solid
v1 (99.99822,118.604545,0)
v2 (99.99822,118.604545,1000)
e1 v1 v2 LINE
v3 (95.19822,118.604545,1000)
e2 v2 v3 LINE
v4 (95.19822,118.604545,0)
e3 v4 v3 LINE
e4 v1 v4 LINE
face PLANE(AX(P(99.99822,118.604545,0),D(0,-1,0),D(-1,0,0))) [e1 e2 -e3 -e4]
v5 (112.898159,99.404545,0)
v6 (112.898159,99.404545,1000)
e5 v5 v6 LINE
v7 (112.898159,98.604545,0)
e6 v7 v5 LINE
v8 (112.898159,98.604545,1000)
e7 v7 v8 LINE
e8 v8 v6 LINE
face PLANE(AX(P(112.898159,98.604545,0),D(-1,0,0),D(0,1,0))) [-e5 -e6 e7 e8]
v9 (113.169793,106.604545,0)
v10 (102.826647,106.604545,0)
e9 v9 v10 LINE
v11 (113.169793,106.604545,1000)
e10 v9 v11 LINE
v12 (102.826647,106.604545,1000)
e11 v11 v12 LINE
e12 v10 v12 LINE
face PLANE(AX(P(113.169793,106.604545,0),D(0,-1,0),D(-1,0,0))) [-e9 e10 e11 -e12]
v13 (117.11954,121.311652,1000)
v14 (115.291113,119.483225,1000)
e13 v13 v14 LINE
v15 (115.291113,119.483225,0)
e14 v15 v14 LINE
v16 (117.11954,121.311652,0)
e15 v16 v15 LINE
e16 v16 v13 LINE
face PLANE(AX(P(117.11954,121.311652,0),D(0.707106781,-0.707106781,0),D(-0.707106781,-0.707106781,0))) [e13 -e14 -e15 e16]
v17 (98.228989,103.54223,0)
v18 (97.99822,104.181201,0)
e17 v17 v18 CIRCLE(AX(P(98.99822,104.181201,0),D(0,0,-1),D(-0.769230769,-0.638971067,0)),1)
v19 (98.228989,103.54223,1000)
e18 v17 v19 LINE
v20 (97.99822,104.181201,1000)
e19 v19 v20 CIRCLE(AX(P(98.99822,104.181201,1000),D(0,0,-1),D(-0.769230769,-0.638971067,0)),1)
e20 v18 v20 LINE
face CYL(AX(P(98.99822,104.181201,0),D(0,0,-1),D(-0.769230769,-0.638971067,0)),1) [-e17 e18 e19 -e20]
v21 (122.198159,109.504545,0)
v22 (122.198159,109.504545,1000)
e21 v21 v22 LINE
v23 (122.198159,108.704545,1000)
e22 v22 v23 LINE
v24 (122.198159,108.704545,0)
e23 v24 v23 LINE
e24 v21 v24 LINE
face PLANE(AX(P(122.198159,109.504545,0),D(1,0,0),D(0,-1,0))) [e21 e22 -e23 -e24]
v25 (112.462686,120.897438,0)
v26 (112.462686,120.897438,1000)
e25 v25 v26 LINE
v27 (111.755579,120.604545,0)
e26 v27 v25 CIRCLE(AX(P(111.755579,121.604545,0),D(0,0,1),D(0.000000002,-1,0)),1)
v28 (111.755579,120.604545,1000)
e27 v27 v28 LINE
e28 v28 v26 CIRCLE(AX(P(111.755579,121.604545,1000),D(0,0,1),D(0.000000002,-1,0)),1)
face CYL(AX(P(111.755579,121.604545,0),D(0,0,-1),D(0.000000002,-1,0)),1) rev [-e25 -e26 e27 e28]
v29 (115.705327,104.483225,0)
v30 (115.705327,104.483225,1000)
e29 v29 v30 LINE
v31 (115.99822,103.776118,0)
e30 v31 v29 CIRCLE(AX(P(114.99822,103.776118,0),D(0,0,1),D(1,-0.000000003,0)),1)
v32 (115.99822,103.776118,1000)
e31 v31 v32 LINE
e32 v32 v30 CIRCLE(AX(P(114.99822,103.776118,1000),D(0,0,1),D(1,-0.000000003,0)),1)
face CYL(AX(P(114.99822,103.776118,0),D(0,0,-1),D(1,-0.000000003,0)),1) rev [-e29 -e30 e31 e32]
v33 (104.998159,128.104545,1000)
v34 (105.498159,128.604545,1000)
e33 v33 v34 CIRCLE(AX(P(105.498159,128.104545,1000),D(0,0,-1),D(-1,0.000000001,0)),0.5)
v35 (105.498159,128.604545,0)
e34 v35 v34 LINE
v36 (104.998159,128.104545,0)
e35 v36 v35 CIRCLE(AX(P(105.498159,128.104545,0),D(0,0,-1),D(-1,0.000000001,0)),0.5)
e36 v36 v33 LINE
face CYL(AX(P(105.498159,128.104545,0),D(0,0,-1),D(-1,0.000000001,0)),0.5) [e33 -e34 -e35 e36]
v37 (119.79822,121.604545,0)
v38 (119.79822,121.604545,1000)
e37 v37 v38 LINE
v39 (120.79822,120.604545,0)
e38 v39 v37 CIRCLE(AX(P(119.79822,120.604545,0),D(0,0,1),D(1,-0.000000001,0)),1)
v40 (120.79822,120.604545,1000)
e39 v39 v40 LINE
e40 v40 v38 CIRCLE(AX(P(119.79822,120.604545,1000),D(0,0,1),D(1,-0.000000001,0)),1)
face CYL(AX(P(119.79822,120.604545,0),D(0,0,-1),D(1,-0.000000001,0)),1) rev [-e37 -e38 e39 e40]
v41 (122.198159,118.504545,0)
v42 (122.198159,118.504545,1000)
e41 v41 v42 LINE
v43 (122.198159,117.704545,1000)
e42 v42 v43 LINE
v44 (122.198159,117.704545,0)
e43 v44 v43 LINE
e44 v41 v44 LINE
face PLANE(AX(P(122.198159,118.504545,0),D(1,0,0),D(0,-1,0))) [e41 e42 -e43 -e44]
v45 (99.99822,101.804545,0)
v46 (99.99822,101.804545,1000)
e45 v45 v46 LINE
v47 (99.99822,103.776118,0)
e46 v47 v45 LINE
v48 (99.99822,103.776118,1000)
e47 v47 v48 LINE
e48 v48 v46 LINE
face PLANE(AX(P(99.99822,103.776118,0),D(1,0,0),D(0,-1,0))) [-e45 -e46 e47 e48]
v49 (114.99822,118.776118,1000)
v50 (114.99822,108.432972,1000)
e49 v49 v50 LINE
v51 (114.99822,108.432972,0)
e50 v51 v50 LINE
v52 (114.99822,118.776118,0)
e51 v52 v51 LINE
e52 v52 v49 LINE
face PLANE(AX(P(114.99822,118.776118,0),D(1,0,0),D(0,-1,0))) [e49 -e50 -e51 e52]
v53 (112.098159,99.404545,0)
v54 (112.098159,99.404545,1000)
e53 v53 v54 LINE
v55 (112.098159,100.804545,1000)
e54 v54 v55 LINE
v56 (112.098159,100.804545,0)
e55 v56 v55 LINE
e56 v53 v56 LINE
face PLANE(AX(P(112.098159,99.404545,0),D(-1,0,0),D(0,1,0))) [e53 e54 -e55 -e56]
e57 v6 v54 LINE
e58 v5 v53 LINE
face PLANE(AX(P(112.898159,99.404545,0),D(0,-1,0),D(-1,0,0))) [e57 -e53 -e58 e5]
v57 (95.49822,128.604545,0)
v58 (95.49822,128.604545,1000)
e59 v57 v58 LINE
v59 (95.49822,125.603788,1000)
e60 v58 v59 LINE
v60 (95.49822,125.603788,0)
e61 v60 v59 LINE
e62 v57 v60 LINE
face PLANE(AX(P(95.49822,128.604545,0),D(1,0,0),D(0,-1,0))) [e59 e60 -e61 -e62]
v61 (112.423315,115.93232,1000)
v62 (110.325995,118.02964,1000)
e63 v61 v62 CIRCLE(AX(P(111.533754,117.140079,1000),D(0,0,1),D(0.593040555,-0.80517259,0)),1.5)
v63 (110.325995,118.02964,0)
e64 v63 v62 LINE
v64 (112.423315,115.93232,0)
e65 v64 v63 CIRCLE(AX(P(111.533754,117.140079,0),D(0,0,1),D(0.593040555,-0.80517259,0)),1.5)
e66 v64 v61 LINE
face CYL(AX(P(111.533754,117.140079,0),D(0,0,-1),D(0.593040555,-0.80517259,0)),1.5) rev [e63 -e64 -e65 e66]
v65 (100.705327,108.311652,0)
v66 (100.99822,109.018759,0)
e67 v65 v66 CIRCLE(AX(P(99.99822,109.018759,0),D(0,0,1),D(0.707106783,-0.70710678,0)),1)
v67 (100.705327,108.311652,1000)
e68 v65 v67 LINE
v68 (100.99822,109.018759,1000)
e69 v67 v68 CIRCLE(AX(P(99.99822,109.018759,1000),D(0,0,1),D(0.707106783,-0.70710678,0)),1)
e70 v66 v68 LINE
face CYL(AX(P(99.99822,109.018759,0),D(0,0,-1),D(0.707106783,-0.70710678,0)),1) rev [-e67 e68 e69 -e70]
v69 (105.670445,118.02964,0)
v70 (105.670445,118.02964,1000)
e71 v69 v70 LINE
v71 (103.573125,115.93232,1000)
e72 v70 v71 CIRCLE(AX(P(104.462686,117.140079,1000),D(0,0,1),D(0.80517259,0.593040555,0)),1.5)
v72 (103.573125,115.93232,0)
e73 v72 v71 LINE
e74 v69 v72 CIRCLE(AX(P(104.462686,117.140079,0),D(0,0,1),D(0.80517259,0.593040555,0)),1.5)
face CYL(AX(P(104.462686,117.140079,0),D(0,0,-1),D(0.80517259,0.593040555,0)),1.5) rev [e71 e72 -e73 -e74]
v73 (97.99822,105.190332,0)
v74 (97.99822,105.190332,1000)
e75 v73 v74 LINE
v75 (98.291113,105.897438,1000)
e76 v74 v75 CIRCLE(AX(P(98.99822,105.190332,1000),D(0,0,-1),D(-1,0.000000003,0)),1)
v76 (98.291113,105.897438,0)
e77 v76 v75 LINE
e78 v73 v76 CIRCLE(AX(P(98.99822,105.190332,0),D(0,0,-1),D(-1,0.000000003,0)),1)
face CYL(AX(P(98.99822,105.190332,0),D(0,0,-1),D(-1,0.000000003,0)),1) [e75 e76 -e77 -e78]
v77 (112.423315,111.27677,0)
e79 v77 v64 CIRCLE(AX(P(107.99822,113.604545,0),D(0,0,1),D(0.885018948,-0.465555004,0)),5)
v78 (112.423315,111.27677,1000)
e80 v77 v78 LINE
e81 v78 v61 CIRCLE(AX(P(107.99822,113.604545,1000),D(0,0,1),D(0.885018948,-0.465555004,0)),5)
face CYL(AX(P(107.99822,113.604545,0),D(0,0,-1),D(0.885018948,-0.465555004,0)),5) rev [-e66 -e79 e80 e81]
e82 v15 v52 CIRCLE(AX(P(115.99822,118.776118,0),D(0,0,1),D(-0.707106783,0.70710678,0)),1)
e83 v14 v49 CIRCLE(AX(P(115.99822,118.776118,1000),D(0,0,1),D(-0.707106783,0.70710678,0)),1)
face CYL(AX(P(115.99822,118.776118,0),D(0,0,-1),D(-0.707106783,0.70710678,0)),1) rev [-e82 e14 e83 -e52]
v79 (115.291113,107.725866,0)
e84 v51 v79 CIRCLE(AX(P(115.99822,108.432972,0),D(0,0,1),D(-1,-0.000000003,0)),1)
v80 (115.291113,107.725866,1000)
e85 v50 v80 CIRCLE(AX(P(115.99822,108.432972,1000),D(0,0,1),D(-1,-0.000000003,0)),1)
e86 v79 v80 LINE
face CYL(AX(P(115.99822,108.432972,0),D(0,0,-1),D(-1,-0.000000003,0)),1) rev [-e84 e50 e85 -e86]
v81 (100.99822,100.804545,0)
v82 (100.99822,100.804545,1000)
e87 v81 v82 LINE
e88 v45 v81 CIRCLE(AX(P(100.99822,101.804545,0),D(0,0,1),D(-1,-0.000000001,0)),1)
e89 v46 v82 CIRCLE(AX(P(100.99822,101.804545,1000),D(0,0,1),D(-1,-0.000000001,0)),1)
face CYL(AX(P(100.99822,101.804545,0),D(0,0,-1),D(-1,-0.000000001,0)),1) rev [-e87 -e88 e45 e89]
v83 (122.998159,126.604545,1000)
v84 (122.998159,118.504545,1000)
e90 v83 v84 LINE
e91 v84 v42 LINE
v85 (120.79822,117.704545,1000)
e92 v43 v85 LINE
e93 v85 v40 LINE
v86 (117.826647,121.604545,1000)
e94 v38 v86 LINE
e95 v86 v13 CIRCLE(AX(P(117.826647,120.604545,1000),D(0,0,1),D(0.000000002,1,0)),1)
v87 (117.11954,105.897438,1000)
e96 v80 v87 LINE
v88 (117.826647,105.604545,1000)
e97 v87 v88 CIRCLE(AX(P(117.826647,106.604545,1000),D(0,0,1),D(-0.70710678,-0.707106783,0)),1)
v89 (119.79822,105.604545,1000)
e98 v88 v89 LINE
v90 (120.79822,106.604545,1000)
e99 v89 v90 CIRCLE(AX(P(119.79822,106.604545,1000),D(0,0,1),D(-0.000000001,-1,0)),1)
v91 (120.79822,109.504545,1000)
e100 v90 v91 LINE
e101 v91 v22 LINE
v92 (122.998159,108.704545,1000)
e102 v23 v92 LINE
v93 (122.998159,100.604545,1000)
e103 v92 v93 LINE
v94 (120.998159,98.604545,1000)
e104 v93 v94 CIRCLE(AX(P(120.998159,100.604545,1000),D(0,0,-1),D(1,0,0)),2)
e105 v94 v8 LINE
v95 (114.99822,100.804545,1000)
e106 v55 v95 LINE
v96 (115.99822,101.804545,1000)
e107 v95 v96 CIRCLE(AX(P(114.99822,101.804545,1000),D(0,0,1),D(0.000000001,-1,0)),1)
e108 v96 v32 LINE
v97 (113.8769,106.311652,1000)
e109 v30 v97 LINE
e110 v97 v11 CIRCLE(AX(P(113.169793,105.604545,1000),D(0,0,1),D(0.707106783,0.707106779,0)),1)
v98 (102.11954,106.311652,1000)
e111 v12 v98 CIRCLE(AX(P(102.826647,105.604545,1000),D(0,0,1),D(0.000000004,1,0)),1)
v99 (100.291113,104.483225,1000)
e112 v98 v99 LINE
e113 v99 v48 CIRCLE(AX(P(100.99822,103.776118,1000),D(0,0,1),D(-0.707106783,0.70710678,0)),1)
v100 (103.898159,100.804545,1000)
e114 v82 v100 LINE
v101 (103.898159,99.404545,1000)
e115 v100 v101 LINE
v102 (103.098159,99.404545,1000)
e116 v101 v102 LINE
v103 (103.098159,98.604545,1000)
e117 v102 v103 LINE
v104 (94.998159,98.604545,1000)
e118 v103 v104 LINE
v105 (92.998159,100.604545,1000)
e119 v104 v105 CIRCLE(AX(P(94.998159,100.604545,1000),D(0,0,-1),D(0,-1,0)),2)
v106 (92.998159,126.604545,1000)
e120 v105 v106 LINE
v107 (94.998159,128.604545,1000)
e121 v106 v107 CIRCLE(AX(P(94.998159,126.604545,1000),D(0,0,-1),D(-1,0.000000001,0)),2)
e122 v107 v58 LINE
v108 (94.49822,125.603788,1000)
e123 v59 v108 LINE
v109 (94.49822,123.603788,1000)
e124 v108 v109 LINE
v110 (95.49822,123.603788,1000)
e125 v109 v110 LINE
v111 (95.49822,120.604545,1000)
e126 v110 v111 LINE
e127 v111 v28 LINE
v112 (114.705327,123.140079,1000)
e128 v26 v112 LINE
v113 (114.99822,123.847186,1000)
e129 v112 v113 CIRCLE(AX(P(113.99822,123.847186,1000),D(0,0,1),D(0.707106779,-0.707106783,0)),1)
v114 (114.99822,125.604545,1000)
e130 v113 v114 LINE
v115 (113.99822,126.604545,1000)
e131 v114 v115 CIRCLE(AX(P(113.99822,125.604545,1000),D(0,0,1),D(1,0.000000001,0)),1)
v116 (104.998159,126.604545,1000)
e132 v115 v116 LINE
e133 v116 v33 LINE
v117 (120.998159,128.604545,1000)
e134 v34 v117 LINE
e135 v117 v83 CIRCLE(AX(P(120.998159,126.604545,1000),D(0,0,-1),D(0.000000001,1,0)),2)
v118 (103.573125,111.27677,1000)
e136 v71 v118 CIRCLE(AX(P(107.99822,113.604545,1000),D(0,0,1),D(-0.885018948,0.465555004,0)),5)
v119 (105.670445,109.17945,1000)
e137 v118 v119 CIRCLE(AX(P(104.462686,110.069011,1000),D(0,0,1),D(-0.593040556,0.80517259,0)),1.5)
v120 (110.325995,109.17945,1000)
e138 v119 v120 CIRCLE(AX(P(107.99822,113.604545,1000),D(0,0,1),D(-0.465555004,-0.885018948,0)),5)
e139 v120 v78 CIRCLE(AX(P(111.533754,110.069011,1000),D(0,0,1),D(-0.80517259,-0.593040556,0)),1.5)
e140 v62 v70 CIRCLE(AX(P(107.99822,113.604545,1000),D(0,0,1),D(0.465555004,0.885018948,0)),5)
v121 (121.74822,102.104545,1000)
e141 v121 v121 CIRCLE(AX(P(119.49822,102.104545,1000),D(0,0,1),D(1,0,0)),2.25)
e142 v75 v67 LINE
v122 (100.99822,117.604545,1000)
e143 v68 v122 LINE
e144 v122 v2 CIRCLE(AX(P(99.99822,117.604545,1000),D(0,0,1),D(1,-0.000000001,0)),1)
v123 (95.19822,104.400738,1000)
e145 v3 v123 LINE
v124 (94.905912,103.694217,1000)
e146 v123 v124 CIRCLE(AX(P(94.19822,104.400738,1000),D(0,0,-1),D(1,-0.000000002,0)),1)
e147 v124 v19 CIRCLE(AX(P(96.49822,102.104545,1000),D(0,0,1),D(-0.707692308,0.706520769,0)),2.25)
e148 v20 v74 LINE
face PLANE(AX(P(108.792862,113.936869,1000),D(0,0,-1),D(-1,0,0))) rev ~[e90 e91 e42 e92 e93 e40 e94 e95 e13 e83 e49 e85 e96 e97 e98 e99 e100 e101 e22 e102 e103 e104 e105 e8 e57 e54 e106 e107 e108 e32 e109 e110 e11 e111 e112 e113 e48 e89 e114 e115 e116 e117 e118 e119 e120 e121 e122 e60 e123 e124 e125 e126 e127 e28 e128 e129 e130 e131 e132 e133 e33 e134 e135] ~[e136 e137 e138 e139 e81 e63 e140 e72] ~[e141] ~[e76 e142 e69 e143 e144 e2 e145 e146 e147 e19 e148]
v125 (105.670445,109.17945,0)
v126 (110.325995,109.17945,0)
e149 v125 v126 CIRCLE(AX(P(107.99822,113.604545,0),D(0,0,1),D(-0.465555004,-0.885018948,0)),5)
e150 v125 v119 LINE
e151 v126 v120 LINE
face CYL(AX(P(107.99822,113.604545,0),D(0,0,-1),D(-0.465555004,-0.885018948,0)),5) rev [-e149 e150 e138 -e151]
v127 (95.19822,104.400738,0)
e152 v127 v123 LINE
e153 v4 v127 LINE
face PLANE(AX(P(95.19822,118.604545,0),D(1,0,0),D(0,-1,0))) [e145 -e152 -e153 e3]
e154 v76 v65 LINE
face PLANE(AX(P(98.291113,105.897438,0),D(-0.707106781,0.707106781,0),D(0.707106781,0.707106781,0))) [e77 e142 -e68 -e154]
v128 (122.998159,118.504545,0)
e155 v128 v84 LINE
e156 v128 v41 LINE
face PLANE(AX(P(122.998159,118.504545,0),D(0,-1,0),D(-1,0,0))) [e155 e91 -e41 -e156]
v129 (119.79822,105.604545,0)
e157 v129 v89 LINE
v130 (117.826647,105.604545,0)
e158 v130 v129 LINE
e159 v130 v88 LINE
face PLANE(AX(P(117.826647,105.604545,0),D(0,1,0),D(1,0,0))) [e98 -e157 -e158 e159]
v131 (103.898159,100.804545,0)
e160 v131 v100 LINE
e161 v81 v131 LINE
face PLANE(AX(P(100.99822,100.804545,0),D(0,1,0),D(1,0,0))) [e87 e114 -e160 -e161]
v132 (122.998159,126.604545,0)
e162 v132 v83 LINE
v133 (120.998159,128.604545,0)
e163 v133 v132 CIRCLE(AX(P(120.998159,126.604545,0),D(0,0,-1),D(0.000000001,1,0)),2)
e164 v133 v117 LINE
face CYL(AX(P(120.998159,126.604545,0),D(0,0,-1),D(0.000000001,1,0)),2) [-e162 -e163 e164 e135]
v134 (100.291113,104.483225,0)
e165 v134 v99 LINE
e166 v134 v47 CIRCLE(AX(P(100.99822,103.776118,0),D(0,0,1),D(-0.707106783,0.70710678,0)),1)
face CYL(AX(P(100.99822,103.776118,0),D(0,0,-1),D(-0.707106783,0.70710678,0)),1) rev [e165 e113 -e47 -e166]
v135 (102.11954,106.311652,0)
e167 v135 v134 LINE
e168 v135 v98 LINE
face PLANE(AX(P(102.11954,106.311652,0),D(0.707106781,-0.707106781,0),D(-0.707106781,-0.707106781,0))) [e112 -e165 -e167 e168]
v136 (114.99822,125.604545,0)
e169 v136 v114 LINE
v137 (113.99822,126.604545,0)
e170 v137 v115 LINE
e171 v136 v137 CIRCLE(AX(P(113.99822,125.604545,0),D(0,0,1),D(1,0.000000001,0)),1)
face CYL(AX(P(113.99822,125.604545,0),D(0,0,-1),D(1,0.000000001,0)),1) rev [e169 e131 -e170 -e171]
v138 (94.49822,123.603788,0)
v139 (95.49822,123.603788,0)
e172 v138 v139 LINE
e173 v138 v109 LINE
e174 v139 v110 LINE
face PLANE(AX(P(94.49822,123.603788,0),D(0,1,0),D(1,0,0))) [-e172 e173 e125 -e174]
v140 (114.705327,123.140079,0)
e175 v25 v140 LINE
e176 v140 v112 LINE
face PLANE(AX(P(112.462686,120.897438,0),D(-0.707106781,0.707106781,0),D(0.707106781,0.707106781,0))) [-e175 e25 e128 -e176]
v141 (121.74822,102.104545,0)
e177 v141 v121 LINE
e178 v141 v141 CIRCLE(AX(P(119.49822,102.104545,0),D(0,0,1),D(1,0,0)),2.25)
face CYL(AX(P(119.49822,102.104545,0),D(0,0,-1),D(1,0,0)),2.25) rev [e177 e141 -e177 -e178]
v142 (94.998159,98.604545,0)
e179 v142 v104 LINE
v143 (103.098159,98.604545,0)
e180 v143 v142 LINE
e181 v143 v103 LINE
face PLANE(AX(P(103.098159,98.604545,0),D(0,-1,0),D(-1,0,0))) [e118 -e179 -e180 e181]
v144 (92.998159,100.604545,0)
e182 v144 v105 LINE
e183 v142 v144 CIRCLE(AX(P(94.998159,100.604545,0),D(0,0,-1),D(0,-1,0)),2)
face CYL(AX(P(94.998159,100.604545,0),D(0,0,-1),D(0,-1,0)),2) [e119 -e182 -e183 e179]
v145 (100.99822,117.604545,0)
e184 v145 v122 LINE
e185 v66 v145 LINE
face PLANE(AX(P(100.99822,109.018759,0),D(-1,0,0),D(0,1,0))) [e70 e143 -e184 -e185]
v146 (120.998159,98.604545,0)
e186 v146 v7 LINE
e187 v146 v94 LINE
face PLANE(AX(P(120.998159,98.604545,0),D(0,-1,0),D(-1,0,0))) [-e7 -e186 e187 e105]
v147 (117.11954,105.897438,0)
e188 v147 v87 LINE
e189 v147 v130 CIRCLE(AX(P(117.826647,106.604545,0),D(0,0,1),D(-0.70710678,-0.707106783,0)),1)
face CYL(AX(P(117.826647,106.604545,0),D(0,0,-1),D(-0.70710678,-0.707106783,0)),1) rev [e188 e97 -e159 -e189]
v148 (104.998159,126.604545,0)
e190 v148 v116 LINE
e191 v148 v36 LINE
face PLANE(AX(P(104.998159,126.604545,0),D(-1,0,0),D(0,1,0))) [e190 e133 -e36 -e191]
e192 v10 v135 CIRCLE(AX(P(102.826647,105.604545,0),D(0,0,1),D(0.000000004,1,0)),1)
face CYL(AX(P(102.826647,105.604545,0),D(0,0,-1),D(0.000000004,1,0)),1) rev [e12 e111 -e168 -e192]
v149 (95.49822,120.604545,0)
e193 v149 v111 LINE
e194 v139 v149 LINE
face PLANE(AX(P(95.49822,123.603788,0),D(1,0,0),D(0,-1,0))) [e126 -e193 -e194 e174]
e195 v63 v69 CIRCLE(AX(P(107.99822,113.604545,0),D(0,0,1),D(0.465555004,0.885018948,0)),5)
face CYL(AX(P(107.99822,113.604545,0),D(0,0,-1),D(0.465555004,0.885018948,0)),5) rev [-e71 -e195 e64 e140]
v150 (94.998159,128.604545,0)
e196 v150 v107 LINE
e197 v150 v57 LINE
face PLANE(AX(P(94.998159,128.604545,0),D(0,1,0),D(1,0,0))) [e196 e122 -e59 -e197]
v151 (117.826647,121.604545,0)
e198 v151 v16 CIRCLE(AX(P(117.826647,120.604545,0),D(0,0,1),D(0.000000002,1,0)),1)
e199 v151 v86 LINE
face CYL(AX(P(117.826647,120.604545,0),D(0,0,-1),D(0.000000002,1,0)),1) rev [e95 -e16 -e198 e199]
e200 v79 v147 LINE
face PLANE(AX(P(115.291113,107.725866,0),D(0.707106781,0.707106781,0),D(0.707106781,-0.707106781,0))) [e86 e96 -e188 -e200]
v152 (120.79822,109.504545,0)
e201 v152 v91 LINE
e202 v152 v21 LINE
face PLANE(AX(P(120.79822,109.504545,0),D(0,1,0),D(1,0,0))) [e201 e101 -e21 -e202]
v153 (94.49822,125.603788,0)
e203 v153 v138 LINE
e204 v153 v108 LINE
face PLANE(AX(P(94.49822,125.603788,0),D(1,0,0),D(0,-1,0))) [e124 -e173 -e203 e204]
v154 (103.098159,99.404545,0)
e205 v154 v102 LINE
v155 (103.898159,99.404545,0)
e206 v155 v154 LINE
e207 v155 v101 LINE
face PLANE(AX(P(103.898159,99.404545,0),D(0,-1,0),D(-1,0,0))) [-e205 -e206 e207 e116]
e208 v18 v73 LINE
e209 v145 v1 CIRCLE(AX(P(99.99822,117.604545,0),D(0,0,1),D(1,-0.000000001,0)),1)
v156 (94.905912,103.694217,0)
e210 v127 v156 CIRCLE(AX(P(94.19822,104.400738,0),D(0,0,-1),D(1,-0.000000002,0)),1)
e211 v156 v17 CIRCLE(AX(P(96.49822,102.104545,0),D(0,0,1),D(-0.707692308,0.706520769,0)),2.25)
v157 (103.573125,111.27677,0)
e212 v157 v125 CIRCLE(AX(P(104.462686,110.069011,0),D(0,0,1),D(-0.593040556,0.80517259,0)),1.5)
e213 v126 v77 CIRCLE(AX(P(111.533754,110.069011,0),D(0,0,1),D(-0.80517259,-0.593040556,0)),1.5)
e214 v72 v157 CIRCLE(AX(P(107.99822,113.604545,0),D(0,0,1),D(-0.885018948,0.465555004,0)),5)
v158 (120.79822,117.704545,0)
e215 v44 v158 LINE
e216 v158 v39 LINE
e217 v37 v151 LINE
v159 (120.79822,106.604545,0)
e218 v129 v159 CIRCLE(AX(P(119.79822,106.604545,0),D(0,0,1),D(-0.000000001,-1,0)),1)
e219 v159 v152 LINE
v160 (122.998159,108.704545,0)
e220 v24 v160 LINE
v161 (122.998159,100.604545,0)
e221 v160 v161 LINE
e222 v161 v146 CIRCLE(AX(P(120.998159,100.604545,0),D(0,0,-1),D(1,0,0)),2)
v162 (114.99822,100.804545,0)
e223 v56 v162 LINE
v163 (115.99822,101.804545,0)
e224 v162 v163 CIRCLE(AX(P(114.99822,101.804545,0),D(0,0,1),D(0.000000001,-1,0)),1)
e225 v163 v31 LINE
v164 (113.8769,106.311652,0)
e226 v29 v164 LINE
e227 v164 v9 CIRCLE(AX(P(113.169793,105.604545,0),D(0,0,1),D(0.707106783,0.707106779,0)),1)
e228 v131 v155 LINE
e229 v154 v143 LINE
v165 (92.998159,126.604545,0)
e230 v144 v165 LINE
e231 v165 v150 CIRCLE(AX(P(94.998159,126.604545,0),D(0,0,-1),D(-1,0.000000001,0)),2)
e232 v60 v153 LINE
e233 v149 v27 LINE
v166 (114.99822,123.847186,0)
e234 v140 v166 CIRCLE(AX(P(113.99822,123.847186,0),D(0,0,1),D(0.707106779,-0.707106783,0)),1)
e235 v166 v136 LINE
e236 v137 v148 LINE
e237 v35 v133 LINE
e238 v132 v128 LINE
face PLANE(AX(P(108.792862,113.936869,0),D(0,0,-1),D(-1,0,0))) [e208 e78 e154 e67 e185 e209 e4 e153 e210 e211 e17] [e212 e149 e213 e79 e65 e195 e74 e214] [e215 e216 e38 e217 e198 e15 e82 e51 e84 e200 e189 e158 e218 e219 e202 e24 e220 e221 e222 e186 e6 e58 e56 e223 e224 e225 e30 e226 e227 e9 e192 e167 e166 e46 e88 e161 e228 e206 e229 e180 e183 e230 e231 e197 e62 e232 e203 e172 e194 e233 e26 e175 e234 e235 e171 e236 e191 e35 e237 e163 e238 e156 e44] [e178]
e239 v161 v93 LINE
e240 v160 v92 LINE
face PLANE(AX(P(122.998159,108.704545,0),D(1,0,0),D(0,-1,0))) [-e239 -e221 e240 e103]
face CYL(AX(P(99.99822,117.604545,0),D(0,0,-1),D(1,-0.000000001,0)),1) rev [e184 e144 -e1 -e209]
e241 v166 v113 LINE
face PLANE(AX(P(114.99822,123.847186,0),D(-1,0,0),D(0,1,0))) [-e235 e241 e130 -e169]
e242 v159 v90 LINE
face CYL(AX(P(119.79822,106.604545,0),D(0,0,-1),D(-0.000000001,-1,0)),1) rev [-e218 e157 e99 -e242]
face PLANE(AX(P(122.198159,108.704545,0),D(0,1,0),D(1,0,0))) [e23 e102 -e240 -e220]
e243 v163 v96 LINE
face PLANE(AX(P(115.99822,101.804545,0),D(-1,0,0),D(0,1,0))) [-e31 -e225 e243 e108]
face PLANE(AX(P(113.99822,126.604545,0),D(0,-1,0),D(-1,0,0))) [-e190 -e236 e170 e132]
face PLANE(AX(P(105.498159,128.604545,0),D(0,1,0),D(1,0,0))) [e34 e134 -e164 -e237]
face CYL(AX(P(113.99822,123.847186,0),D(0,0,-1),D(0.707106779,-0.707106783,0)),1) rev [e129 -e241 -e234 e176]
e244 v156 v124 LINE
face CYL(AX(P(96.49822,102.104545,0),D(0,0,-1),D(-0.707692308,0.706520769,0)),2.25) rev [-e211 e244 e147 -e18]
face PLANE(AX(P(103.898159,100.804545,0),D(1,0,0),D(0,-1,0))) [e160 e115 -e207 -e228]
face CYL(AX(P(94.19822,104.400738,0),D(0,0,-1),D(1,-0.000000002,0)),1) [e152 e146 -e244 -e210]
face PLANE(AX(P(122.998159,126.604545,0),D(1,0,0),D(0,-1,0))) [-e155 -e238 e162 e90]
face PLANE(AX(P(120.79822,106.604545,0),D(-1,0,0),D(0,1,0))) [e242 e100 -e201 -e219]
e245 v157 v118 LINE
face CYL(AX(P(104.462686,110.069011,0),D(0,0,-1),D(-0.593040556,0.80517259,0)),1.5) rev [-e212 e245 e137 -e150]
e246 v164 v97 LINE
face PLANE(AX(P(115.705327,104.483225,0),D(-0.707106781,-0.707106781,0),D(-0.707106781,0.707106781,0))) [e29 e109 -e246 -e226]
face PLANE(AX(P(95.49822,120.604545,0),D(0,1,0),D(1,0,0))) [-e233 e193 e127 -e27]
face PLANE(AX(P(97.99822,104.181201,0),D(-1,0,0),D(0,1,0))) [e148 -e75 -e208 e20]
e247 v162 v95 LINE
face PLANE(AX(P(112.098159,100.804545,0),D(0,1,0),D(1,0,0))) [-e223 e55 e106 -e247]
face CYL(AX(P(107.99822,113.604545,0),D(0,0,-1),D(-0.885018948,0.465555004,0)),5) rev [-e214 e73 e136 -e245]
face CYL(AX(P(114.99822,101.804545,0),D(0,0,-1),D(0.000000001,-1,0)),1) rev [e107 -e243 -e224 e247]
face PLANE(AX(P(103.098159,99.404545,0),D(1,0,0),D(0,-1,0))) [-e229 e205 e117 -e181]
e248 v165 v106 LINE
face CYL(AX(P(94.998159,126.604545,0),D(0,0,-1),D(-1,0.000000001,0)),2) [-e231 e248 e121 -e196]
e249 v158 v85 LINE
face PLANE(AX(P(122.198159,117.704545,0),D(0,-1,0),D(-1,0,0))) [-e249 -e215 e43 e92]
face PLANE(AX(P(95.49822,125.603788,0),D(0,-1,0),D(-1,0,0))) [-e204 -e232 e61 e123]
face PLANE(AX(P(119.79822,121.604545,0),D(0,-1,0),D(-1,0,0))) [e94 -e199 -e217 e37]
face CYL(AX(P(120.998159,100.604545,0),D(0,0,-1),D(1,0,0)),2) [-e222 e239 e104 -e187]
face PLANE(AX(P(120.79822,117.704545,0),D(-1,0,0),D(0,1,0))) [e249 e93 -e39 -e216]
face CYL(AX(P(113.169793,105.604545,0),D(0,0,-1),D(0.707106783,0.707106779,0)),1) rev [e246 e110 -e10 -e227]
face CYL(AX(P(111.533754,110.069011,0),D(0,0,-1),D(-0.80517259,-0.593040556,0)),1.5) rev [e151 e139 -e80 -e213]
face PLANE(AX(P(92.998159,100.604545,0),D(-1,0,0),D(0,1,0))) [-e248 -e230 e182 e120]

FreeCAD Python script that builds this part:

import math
import FreeCAD as App
import Part
import Sketcher

V = App.Vector

doc = App.newDocument("Part")
body = doc.addObject("PartDesign::Body", "Body")

sketch1 = body.newObject("Sketcher::SketchObject", "Sketch")
sketch1.AttachmentSupport = (doc.getObject("XY_Plane"), [""])
sketch1.MapMode = "FlatFace"
sketch1.addGeometry(Part.LineSegment(V(95.5, 123.6, 0), V(94.5, 123.6, 0)), False)
sketch1.addGeometry(Part.LineSegment(V(94.5, 123.6, 0), V(94.5, 125.6, 0)), False)
sketch1.addGeometry(Part.LineSegment(V(94.5, 125.6, 0), V(95.5, 125.6, 0)), False)
sketch1.addGeometry(Part.LineSegment(V(95.5, 125.6, 0), V(95.5, 128.6, 0)), False)
sketch1.addGeometry(Part.LineSegment(V(95.5, 128.6, 0), V(95, 128.6, 0)), False)
sketch1.addGeometry(Part.ArcOfCircle(Part.Circle(V(95, 126.6, 0), V(0, 0, 1), 2), math.radians(90), math.radians(180)), False)
sketch1.addGeometry(Part.LineSegment(V(93, 126.6, 0), V(93, 100.6, 0)), False)
sketch1.addGeometry(Part.ArcOfCircle(Part.Circle(V(95, 100.6, 0), V(0, 0, 1), 2), math.radians(180), math.radians(270)), False)
sketch1.addGeometry(Part.LineSegment(V(95, 98.6, 0), V(103.1, 98.6, 0)), False)
sketch1.addGeometry(Part.LineSegment(V(103.1, 98.6, 0), V(103.1, 99.4, 0)), False)
sketch1.addGeometry(Part.LineSegment(V(103.1, 99.4, 0), V(103.9, 99.4, 0)), False)
sketch1.addGeometry(Part.LineSegment(V(103.9, 99.4, 0), V(103.9, 100.8, 0)), False)
sketch1.addGeometry(Part.LineSegment(V(103.9, 100.8, 0), V(101, 100.8, 0)), False)
sketch1.addGeometry(Part.ArcOfCircle(Part.Circle(V(101, 101.8, 0), V(0, 0, 1), 1), math.radians(-180), math.radians(-90)), False)
sketch1.addGeometry(Part.LineSegment(V(100, 101.8, 0), V(100, 103.8, 0)), False)
sketch1.addGeometry(Part.ArcOfCircle(Part.Circle(V(101, 103.8, 0), V(0, 0, 1), 1), math.radians(135), math.radians(180)), False)
sketch1.addGeometry(Part.LineSegment(V(100.3, 104.5, 0), V(102.1, 106.3, 0)), False)
sketch1.addGeometry(Part.ArcOfCircle(Part.Circle(V(102.8, 105.6, 0), V(0, 0, 1), 1), math.radians(90), math.radians(135)), False)
sketch1.addGeometry(Part.LineSegment(V(102.8, 106.6, 0), V(113.2, 106.6, 0)), False)
sketch1.addGeometry(Part.ArcOfCircle(Part.Circle(V(113.2, 105.6, 0), V(0, 0, 1), 1), math.radians(45), math.radians(90)), False)
sketch1.addGeometry(Part.LineSegment(V(113.9, 106.3, 0), V(115.7, 104.5, 0)), False)
sketch1.addGeometry(Part.ArcOfCircle(Part.Circle(V(115, 103.8, 0), V(0, 0, 1), 1), math.radians(0), math.radians(45)), False)
sketch1.addGeometry(Part.LineSegment(V(116, 103.8, 0), V(116, 101.8, 0)), False)
sketch1.addGeometry(Part.ArcOfCircle(Part.Circle(V(115, 101.8, 0), V(0, 0, 1), 1), math.radians(-90), math.radians(0)), False)
sketch1.addGeometry(Part.LineSegment(V(115, 100.8, 0), V(112.1, 100.8, 0)), False)
sketch1.addGeometry(Part.LineSegment(V(112.1, 100.8, 0), V(112.1, 99.4, 0)), False)
sketch1.addGeometry(Part.LineSegment(V(112.1, 99.4, 0), V(112.9, 99.4, 0)), False)
sketch1.addGeometry(Part.LineSegment(V(112.9, 99.4, 0), V(112.9, 98.6, 0)), False)
sketch1.addGeometry(Part.LineSegment(V(112.9, 98.6, 0), V(121, 98.6, 0)), False)
sketch1.addGeometry(Part.ArcOfCircle(Part.Circle(V(121, 100.6, 0), V(0, 0, 1), 2), math.radians(-90), math.radians(0)), False)
sketch1.addGeometry(Part.LineSegment(V(123, 100.6, 0), V(123, 108.7, 0)), False)
sketch1.addGeometry(Part.LineSegment(V(123, 108.7, 0), V(122.2, 108.7, 0)), False)
sketch1.addGeometry(Part.LineSegment(V(122.2, 108.7, 0), V(122.2, 109.5, 0)), False)
sketch1.addGeometry(Part.LineSegment(V(122.2, 109.5, 0), V(120.8, 109.5, 0)), False)
sketch1.addGeometry(Part.LineSegment(V(120.8, 109.5, 0), V(120.8, 106.6, 0)), False)
sketch1.addGeometry(Part.ArcOfCircle(Part.Circle(V(119.8, 106.6, 0), V(0, 0, 1), 1), math.radians(-90), math.radians(0)), False)
sketch1.addGeometry(Part.LineSegment(V(119.8, 105.6, 0), V(117.8, 105.6, 0)), False)
sketch1.addGeometry(Part.ArcOfCircle(Part.Circle(V(117.8, 106.6, 0), V(0, 0, 1), 1), math.radians(-135), math.radians(-90)), False)
sketch1.addGeometry(Part.LineSegment(V(117.1, 105.9, 0), V(115.3, 107.7, 0)), False)
sketch1.addGeometry(Part.ArcOfCircle(Part.Circle(V(116, 108.4, 0), V(0, 0, 1), 1), math.radians(-180), math.radians(-135)), False)
sketch1.addGeometry(Part.LineSegment(V(115, 108.4, 0), V(115, 118.8, 0)), False)
sketch1.addGeometry(Part.ArcOfCircle(Part.Circle(V(116, 118.8, 0), V(0, 0, 1), 1), math.radians(135), math.radians(180)), False)
sketch1.addGeometry(Part.LineSegment(V(115.3, 119.5, 0), V(117.1, 121.3, 0)), False)
sketch1.addGeometry(Part.ArcOfCircle(Part.Circle(V(117.8, 120.6, 0), V(0, 0, 1), 1), math.radians(90), math.radians(135)), False)
sketch1.addGeometry(Part.LineSegment(V(117.8, 121.6, 0), V(119.8, 121.6, 0)), False)
sketch1.addGeometry(Part.ArcOfCircle(Part.Circle(V(119.8, 120.6, 0), V(0, 0, 1), 1), math.radians(0), math.radians(90)), False)
sketch1.addGeometry(Part.LineSegment(V(120.8, 120.6, 0), V(120.8, 117.7, 0)), False)
sketch1.addGeometry(Part.LineSegment(V(120.8, 117.7, 0), V(122.2, 117.7, 0)), False)
sketch1.addGeometry(Part.LineSegment(V(122.2, 117.7, 0), V(122.2, 118.5, 0)), False)
sketch1.addGeometry(Part.LineSegment(V(122.2, 118.5, 0), V(123, 118.5, 0)), False)
sketch1.addGeometry(Part.LineSegment(V(123, 118.5, 0), V(123, 126.6, 0)), False)
sketch1.addGeometry(Part.ArcOfCircle(Part.Circle(V(121, 126.6, 0), V(0, 0, 1), 2), math.radians(0), math.radians(90)), False)
sketch1.addGeometry(Part.LineSegment(V(121, 128.6, 0), V(105.5, 128.6, 0)), False)
sketch1.addGeometry(Part.ArcOfCircle(Part.Circle(V(105.5, 128.1, 0), V(0, 0, 1), 0.5), math.radians(90), math.radians(180)), False)
sketch1.addGeometry(Part.LineSegment(V(105, 128.1, 0), V(105, 126.6, 0)), False)
sketch1.addGeometry(Part.LineSegment(V(105, 126.6, 0), V(114, 126.6, 0)), False)
sketch1.addGeometry(Part.ArcOfCircle(Part.Circle(V(114, 125.6, 0), V(0, 0, 1), 1), math.radians(0), math.radians(90)), False)
sketch1.addGeometry(Part.LineSegment(V(115, 125.6, 0), V(115, 123.8, 0)), False)
sketch1.addGeometry(Part.ArcOfCircle(Part.Circle(V(114, 123.8, 0), V(0, 0, 1), 1), math.radians(-45), math.radians(0)), False)
sketch1.addGeometry(Part.LineSegment(V(114.7, 123.1, 0), V(112.5, 120.9, 0)), False)
sketch1.addGeometry(Part.ArcOfCircle(Part.Circle(V(111.8, 121.6, 0), V(0, 0, 1), 1), math.radians(-90), math.radians(-45)), False)
sketch1.addGeometry(Part.LineSegment(V(111.8, 120.6, 0), V(95.5, 120.6, 0)), False)
sketch1.addGeometry(Part.LineSegment(V(95.5, 120.6, 0), V(95.5, 123.6, 0)), False)
sketch1.addGeometry(Part.Circle(V(119.5, 102.1, 0), V(0, 0, 1), 2.2), False)
sketch1.addGeometry(Part.ArcOfCircle(Part.Circle(V(99, 104.2, 0), V(0, 0, 1), 1), math.radians(180), math.radians(220)), False)
sketch1.addGeometry(Part.ArcOfCircle(Part.Circle(V(96.5, 102.1, 0), V(0, 0, 1), 2.2), math.radians(135), math.radians(400)), False)
sketch1.addGeometry(Part.ArcOfCircle(Part.Circle(V(94.2, 104.4, 0), V(0, 0, 1), 1), math.radians(-45), math.radians(0)), False)
sketch1.addGeometry(Part.LineSegment(V(95.2, 104.4, 0), V(95.2, 118.6, 0)), False)
sketch1.addGeometry(Part.LineSegment(V(95.2, 118.6, 0), V(100, 118.6, 0)), False)
sketch1.addGeometry(Part.ArcOfCircle(Part.Circle(V(100, 117.6, 0), V(0, 0, 1), 1), math.radians(0), math.radians(90)), False)
sketch1.addGeometry(Part.LineSegment(V(101, 117.6, 0), V(101, 109, 0)), False)
sketch1.addGeometry(Part.ArcOfCircle(Part.Circle(V(100, 109, 0), V(0, 0, 1), 1), math.radians(-45), math.radians(0)), False)
sketch1.addGeometry(Part.LineSegment(V(100.7, 108.3, 0), V(98.3, 105.9, 0)), False)
sketch1.addGeometry(Part.ArcOfCircle(Part.Circle(V(99, 105.2, 0), V(0, 0, 1), 1), math.radians(135), math.radians(180)), False)
sketch1.addGeometry(Part.LineSegment(V(98, 105.2, 0), V(98, 104.2, 0)), False)
sketch1.addGeometry(Part.ArcOfCircle(Part.Circle(V(104.5, 117.1, 0), V(0, 0, 1), 1.5), math.radians(36), math.radians(234)), False)
sketch1.addGeometry(Part.ArcOfCircle(Part.Circle(V(108, 113.6, 0), V(0, 0, 1), 5), math.radians(62), math.radians(118)), False)
sketch1.addGeometry(Part.ArcOfCircle(Part.Circle(V(111.5, 117.1, 0), V(0, 0, 1), 1.5), math.radians(-54), math.radians(144)), False)
sketch1.addGeometry(Part.ArcOfCircle(Part.Circle(V(108, 113.6, 0), V(0, 0, 1), 5), math.radians(-28), math.radians(28)), False)
sketch1.addGeometry(Part.ArcOfCircle(Part.Circle(V(111.5, 110.1, 0), V(0, 0, 1), 1.5), math.radians(-144), math.radians(54)), False)
sketch1.addGeometry(Part.ArcOfCircle(Part.Circle(V(108, 113.6, 0), V(0, 0, 1), 5), math.radians(-118), math.radians(-62)), False)
sketch1.addGeometry(Part.ArcOfCircle(Part.Circle(V(104.5, 110.1, 0), V(0, 0, 1), 1.5), math.radians(126), math.radians(324)), False)
sketch1.addGeometry(Part.ArcOfCircle(Part.Circle(V(108, 113.6, 0), V(0, 0, 1), 5), math.radians(152), math.radians(208)), False)
sketch1.addConstraint(Sketcher.Constraint("Coincident", 0, 2, 1, 1))
sketch1.addConstraint(Sketcher.Constraint("Coincident", 1, 2, 2, 1))
sketch1.addConstraint(Sketcher.Constraint("Coincident", 2, 2, 3, 1))
sketch1.addConstraint(Sketcher.Constraint("Coincident", 3, 2, 4, 1))
sketch1.addConstraint(Sketcher.Constraint("Tangent", 4, 2, 5, 1))
sketch1.addConstraint(Sketcher.Constraint("Tangent", 5, 2, 6, 1))
sketch1.addConstraint(Sketcher.Constraint("Tangent", 6, 2, 7, 1))
sketch1.addConstraint(Sketcher.Constraint("Tangent", 7, 2, 8, 1))
sketch1.addConstraint(Sketcher.Constraint("Coincident", 8, 2, 9, 1))
sketch1.addConstraint(Sketcher.Constraint("Coincident", 9, 2, 10, 1))
sketch1.addConstraint(Sketcher.Constraint("Coincident", 10, 2, 11, 1))
sketch1.addConstraint(Sketcher.Constraint("Coincident", 11, 2, 12, 1))
sketch1.addConstraint(Sketcher.Constraint("Tangent", 12, 2, 13, 2))
sketch1.addConstraint(Sketcher.Constraint("Tangent", 13, 1, 14, 1))
sketch1.addConstraint(Sketcher.Constraint("Tangent", 14, 2, 15, 2))
sketch1.addConstraint(Sketcher.Constraint("Tangent", 15, 1, 16, 1))
sketch1.addConstraint(Sketcher.Constraint("Tangent", 16, 2, 17, 2))
sketch1.addConstraint(Sketcher.Constraint("Tangent", 17, 1, 18, 1))
sketch1.addConstraint(Sketcher.Constraint("Tangent", 18, 2, 19, 2))
sketch1.addConstraint(Sketcher.Constraint("Tangent", 19, 1, 20, 1))
sketch1.addConstraint(Sketcher.Constraint("Tangent", 20, 2, 21, 2))
sketch1.addConstraint(Sketcher.Constraint("Tangent", 21, 1, 22, 1))
sketch1.addConstraint(Sketcher.Constraint("Tangent", 22, 2, 23, 2))
sketch1.addConstraint(Sketcher.Constraint("Tangent", 23, 1, 24, 1))
sketch1.addConstraint(Sketcher.Constraint("Coincident", 24, 2, 25, 1))
sketch1.addConstraint(Sketcher.Constraint("Coincident", 25, 2, 26, 1))
sketch1.addConstraint(Sketcher.Constraint("Coincident", 26, 2, 27, 1))
sketch1.addConstraint(Sketcher.Constraint("Coincident", 27, 2, 28, 1))
sketch1.addConstraint(Sketcher.Constraint("Tangent", 28, 2, 29, 1))
sketch1.addConstraint(Sketcher.Constraint("Tangent", 29, 2, 30, 1))
sketch1.addConstraint(Sketcher.Constraint("Coincident", 30, 2, 31, 1))
sketch1.addConstraint(Sketcher.Constraint("Coincident", 31, 2, 32, 1))
sketch1.addConstraint(Sketcher.Constraint("Coincident", 32, 2, 33, 1))
sketch1.addConstraint(Sketcher.Constraint("Coincident", 33, 2, 34, 1))
sketch1.addConstraint(Sketcher.Constraint("Tangent", 34, 2, 35, 2))
sketch1.addConstraint(Sketcher.Constraint("Tangent", 35, 1, 36, 1))
sketch1.addConstraint(Sketcher.Constraint("Tangent", 36, 2, 37, 2))
sketch1.addConstraint(Sketcher.Constraint("Tangent", 37, 1, 38, 1))
sketch1.addConstraint(Sketcher.Constraint("Tangent", 38, 2, 39, 2))
sketch1.addConstraint(Sketcher.Constraint("Tangent", 39, 1, 40, 1))
sketch1.addConstraint(Sketcher.Constraint("Tangent", 40, 2, 41, 2))
sketch1.addConstraint(Sketcher.Constraint("Tangent", 41, 1, 42, 1))
sketch1.addConstraint(Sketcher.Constraint("Tangent", 42, 2, 43, 2))
sketch1.addConstraint(Sketcher.Constraint("Tangent", 43, 1, 44, 1))
sketch1.addConstraint(Sketcher.Constraint("Tangent", 44, 2, 45, 2))
sketch1.addConstraint(Sketcher.Constraint("Tangent", 45, 1, 46, 1))
sketch1.addConstraint(Sketcher.Constraint("Coincident", 46, 2, 47, 1))
sketch1.addConstraint(Sketcher.Constraint("Coincident", 47, 2, 48, 1))
sketch1.addConstraint(Sketcher.Constraint("Coincident", 48, 2, 49, 1))
sketch1.addConstraint(Sketcher.Constraint("Coincident", 49, 2, 50, 1))
sketch1.addConstraint(Sketcher.Constraint("Tangent", 50, 2, 51, 1))
sketch1.addConstraint(Sketcher.Constraint("Tangent", 51, 2, 52, 1))
sketch1.addConstraint(Sketcher.Constraint("Tangent", 52, 2, 53, 1))
sketch1.addConstraint(Sketcher.Constraint("Tangent", 53, 2, 54, 1))
sketch1.addConstraint(Sketcher.Constraint("Coincident", 54, 2, 55, 1))
sketch1.addConstraint(Sketcher.Constraint("Tangent", 55, 2, 56, 2))
sketch1.addConstraint(Sketcher.Constraint("Tangent", 56, 1, 57, 1))
sketch1.addConstraint(Sketcher.Constraint("Tangent", 57, 2, 58, 2))
sketch1.addConstraint(Sketcher.Constraint("Tangent", 58, 1, 59, 1))
sketch1.addConstraint(Sketcher.Constraint("Tangent", 59, 2, 60, 2))
sketch1.addConstraint(Sketcher.Constraint("Tangent", 60, 1, 61, 1))
sketch1.addConstraint(Sketcher.Constraint("Coincident", 61, 2, 62, 1))
sketch1.addConstraint(Sketcher.Constraint("Coincident", 62, 2, 0, 1))
sketch1.addConstraint(Sketcher.Constraint("Tangent", 64, 2, 65, 2))
sketch1.addConstraint(Sketcher.Constraint("Tangent", 65, 1, 66, 1))
sketch1.addConstraint(Sketcher.Constraint("Tangent", 66, 2, 67, 1))
sketch1.addConstraint(Sketcher.Constraint("Coincident", 67, 2, 68, 1))
sketch1.addConstraint(Sketcher.Constraint("Tangent", 68, 2, 69, 2))
sketch1.addConstraint(Sketcher.Constraint("Tangent", 69, 1, 70, 1))
sketch1.addConstraint(Sketcher.Constraint("Tangent", 70, 2, 71, 2))
sketch1.addConstraint(Sketcher.Constraint("Tangent", 71, 1, 72, 1))
sketch1.addConstraint(Sketcher.Constraint("Tangent", 72, 2, 73, 1))
sketch1.addConstraint(Sketcher.Constraint("Tangent", 73, 2, 74, 1))
sketch1.addConstraint(Sketcher.Constraint("Tangent", 74, 2, 64, 1))
sketch1.addConstraint(Sketcher.Constraint("Coincident", 75, 1, 76, 2))
sketch1.addConstraint(Sketcher.Constraint("Coincident", 76, 1, 77, 2))
sketch1.addConstraint(Sketcher.Constraint("Coincident", 77, 1, 78, 2))
sketch1.addConstraint(Sketcher.Constraint("Coincident", 78, 1, 79, 2))
sketch1.addConstraint(Sketcher.Constraint("Coincident", 79, 1, 80, 2))
sketch1.addConstraint(Sketcher.Constraint("Coincident", 80, 1, 81, 2))
sketch1.addConstraint(Sketcher.Constraint("Coincident", 81, 1, 82, 2))
sketch1.addConstraint(Sketcher.Constraint("Coincident", 82, 1, 75, 2))
sketch1.addConstraint(Sketcher.Constraint("Horizontal", 0))
sketch1.addConstraint(Sketcher.Constraint("Vertical", 1))
sketch1.addConstraint(Sketcher.Constraint("Horizontal", 2))
sketch1.addConstraint(Sketcher.Constraint("Vertical", 3))
sketch1.addConstraint(Sketcher.Constraint("Horizontal", 4))
sketch1.addConstraint(Sketcher.Constraint("Vertical", 6))
sketch1.addConstraint(Sketcher.Constraint("Horizontal", 8))
sketch1.addConstraint(Sketcher.Constraint("Vertical", 9))
sketch1.addConstraint(Sketcher.Constraint("Horizontal", 10))
sketch1.addConstraint(Sketcher.Constraint("Vertical", 11))
sketch1.addConstraint(Sketcher.Constraint("Horizontal", 12))
sketch1.addConstraint(Sketcher.Constraint("Vertical", 14))
sketch1.addConstraint(Sketcher.Constraint("Horizontal", 18))
sketch1.addConstraint(Sketcher.Constraint("Vertical", 22))
sketch1.addConstraint(Sketcher.Constraint("Horizontal", 24))
sketch1.addConstraint(Sketcher.Constraint("Vertical", 25))
sketch1.addConstraint(Sketcher.Constraint("Horizontal", 26))
sketch1.addConstraint(Sketcher.Constraint("Vertical", 27))
sketch1.addConstraint(Sketcher.Constraint("Horizontal", 28))
sketch1.addConstraint(Sketcher.Constraint("Vertical", 30))
sketch1.addConstraint(Sketcher.Constraint("Horizontal", 31))
sketch1.addConstraint(Sketcher.Constraint("Vertical", 32))
sketch1.addConstraint(Sketcher.Constraint("Horizontal", 33))
sketch1.addConstraint(Sketcher.Constraint("Vertical", 34))
sketch1.addConstraint(Sketcher.Constraint("Horizontal", 36))
sketch1.addConstraint(Sketcher.Constraint("Vertical", 40))
sketch1.addConstraint(Sketcher.Constraint("Horizontal", 44))
sketch1.addConstraint(Sketcher.Constraint("Vertical", 46))
sketch1.addConstraint(Sketcher.Constraint("Horizontal", 47))
sketch1.addConstraint(Sketcher.Constraint("Vertical", 48))
sketch1.addConstraint(Sketcher.Constraint("Horizontal", 49))
sketch1.addConstraint(Sketcher.Constraint("Vertical", 50))
sketch1.addConstraint(Sketcher.Constraint("Horizontal", 52))
sketch1.addConstraint(Sketcher.Constraint("Vertical", 54))
sketch1.addConstraint(Sketcher.Constraint("Horizontal", 55))
sketch1.addConstraint(Sketcher.Constraint("Vertical", 57))
sketch1.addConstraint(Sketcher.Constraint("Horizontal", 61))
sketch1.addConstraint(Sketcher.Constraint("Vertical", 62))
sketch1.addConstraint(Sketcher.Constraint("Vertical", 67))
sketch1.addConstraint(Sketcher.Constraint("Horizontal", 68))
sketch1.addConstraint(Sketcher.Constraint("Vertical", 70))
sketch1.addConstraint(Sketcher.Constraint("Vertical", 74))
sketch1.addConstraint(Sketcher.Constraint("Coincident", 78, 3, 76, 3))
sketch1.addConstraint(Sketcher.Constraint("Coincident", 80, 3, 76, 3))
sketch1.addConstraint(Sketcher.Constraint("Coincident", 82, 3, 76, 3))
sketch1.addConstraint(Sketcher.Constraint("Equal", 5, 7))
sketch1.addConstraint(Sketcher.Constraint("Equal", 13, 15))
sketch1.addConstraint(Sketcher.Constraint("Equal", 15, 17))
sketch1.addConstraint(Sketcher.Constraint("Equal", 17, 19))
sketch1.addConstraint(Sketcher.Constraint("Equal", 19, 21))
sketch1.addConstraint(Sketcher.Constraint("Equal", 21, 23))
sketch1.addConstraint(Sketcher.Constraint("Equal", 7, 29))
sketch1.addConstraint(Sketcher.Constraint("Equal", 23, 35))
sketch1.addConstraint(Sketcher.Constraint("Equal", 35, 37))
sketch1.addConstraint(Sketcher.Constraint("Equal", 37, 39))
sketch1.addConstraint(Sketcher.Constraint("Equal", 39, 41))
sketch1.addConstraint(Sketcher.Constraint("Equal", 41, 43))
sketch1.addConstraint(Sketcher.Constraint("Equal", 43, 45))
sketch1.addConstraint(Sketcher.Constraint("Equal", 29, 51))
sketch1.addConstraint(Sketcher.Constraint("Equal", 45, 56))
sketch1.addConstraint(Sketcher.Constraint("Equal", 56, 58))
sketch1.addConstraint(Sketcher.Constraint("Equal", 58, 60))
sketch1.addConstraint(Sketcher.Constraint("Equal", 60, 64))
sketch1.addConstraint(Sketcher.Constraint("Equal", 63, 65))
sketch1.addConstraint(Sketcher.Constraint("Equal", 64, 66))
sketch1.addConstraint(Sketcher.Constraint("Equal", 66, 69))
sketch1.addConstraint(Sketcher.Constraint("Equal", 69, 71))
sketch1.addConstraint(Sketcher.Constraint("Equal", 71, 73))
sketch1.addConstraint(Sketcher.Constraint("Equal", 75, 77))
sketch1.addConstraint(Sketcher.Constraint("Equal", 76, 78))
sketch1.addConstraint(Sketcher.Constraint("Equal", 77, 79))
sketch1.addConstraint(Sketcher.Constraint("Equal", 78, 80))
sketch1.addConstraint(Sketcher.Constraint("Equal", 79, 81))
sketch1.addConstraint(Sketcher.Constraint("Equal", 80, 82))
sketch1.addConstraint(Sketcher.Constraint("Perpendicular", 16, 20))
sketch1.addConstraint(Sketcher.Constraint("Parallel", 20, 38))
sketch1.addConstraint(Sketcher.Constraint("Perpendicular", 38, 42))
sketch1.addConstraint(Sketcher.Constraint("Parallel", 42, 59))
sketch1.addConstraint(Sketcher.Constraint("Parallel", 59, 72))
sketch1.addConstraint(Sketcher.Constraint("Horizontal", 15, 3, 21, 3))
sketch1.addConstraint(Sketcher.Constraint("Horizontal", 13, 3, 23, 3))
sketch1.addConstraint(Sketcher.Constraint("Horizontal", 7, 3, 29, 3))
sketch1.addConstraint(Sketcher.Constraint("Horizontal", 5, 3, 51, 3))
sketch1.addConstraint(Sketcher.Constraint("Horizontal", 63, 3, 65, 3))
sketch1.addConstraint(Sketcher.Constraint("Horizontal", 75, 3, 77, 3))
sketch1.addConstraint(Sketcher.Constraint("Horizontal", 79, 3, 81, 3))
sketch1.addConstraint(Sketcher.Constraint("Horizontal", 37, 3, 17, 1))
sketch1.addConstraint(Sketcher.Constraint("Horizontal", 16, 2, 19, 1))
sketch1.addConstraint(Sketcher.Constraint("Horizontal", 10, 2, 25, 2))
sketch1.addConstraint(Sketcher.Constraint("Horizontal", 60, 3, 43, 1))
sketch1.addConstraint(Sketcher.Constraint("Horizontal", 50, 2, 54, 2))
sketch1.addConstraint(Sketcher.Constraint("Horizontal", 37, 1, 72, 2))
sketch1.addConstraint(Sketcher.Constraint("Horizontal", 75, 1, 76, 1))
sketch1.addConstraint(Sketcher.Constraint("Horizontal", 79, 1, 80, 1))
sketch1.addConstraint(Sketcher.Constraint("Vertical", 37, 3, 43, 3))
sketch1.addConstraint(Sketcher.Constraint("Vertical", 35, 3, 45, 3))
sketch1.addConstraint(Sketcher.Constraint("Vertical", 29, 3, 51, 3))
sketch1.addConstraint(Sketcher.Constraint("Vertical", 77, 3, 79, 3))
sketch1.addConstraint(Sketcher.Constraint("Vertical", 71, 3, 13, 1))
sketch1.addConstraint(Sketcher.Constraint("Vertical", 41, 3, 21, 1))
sketch1.addConstraint(Sketcher.Constraint("Vertical", 32, 2, 47, 2))
sketch1.addConstraint(Sketcher.Constraint("Vertical", 40, 2, 56, 1))
sketch1.addConstraint(Sketcher.Constraint("Vertical", 3, 2, 61, 2))
sketch1.addConstraint(Sketcher.Constraint("Vertical", 77, 1, 78, 1))
sketch1.addConstraint(Sketcher.Constraint("Equal", 10, 26))
sketch1.addConstraint(Sketcher.Constraint("Equal", 8, 28))
sketch1.addConstraint(Sketcher.Constraint("Equal", 26, 31))
sketch1.addConstraint(Sketcher.Constraint("Equal", 49, 9))
sketch1.addConstraint(Sketcher.Constraint("Equal", 44, 14))
sketch1.addConstraint(Sketcher.Constraint("Equal", 28, 30))
sketch1.addConstraint(Sketcher.Constraint("Equal", 27, 32))
sketch1.addConstraint(Sketcher.Constraint("Equal", 18, 40))
sketch1.addConstraint(Sketcher.Constraint("Equal", 34, 46))
sketch1.addConstraint(Sketcher.Constraint("Equal", 32, 48))
sketch1.addConstraint(Sketcher.Constraint("Equal", 30, 50))
sketch1.addConstraint(Sketcher.Constraint("Equal", 20, 38))
sketch1.addConstraint(Sketcher.Constraint("Radius", 5, 2.0))
sketch1.addConstraint(Sketcher.Constraint("Radius", 13, 1.0))
sketch1.addConstraint(Sketcher.Constraint("Radius", 76, 5.0))
sketch1.addConstraint(Sketcher.Constraint("Diameter", 63, 4.5))
sketch1.addConstraint(Sketcher.Constraint("Radius", 53, 0.5))
sketch1.addConstraint(Sketcher.Constraint("Radius", 75, 1.5))
sketch1.addConstraint(Sketcher.Constraint("DistanceX", 0, 2, 0, 1, 1.0))
sketch1.addConstraint(Sketcher.Constraint("DistanceY", 1, 1, 1, 2, 2.0))
sketch1.addConstraint(Sketcher.Constraint("DistanceY", 6, 2, 6, 1, 26.0))
sketch1.addConstraint(Sketcher.Constraint("DistanceX", 8, 1, 8, 2, 8.1))
sketch1.addConstraint(Sketcher.Constraint("DistanceX", 10, 1, 10, 2, 0.8))
sketch1.addConstraint(Sketcher.Constraint("DistanceX", 52, 2, 52, 1, 15.5))
sketch1.addConstraint(Sketcher.Constraint("DistanceX", 68, 1, 68, 2, 4.8))
sketch1.addConstraint(Sketcher.Constraint("DistanceY", 11, 1, 11, 2, 1.4))
sketch1.addConstraint(Sketcher.Constraint("DistanceY", 34, 2, 34, 1, 2.9))
sketch1.addConstraint(Sketcher.Constraint("DistanceX", 4, 2, 4, 1, 0.500061))
sketch1.addConstraint(Sketcher.Constraint("DistanceX", 12, 2, 12, 1, 2.899939))
sketch1.addConstraint(Sketcher.Constraint("DistanceX", 24, 2, 24, 1, 2.900061))
sketch1.addConstraint(Sketcher.Constraint("DistanceX", 61, 2, 61, 1, 16.257359))
sketch1.addConstraint(Sketcher.Constraint("DistanceY", 74, 2, 74, 1, 1.00913))
sketch1.addConstraint(Sketcher.Constraint("DistanceY", -1, 1, 64, 3, 104.181201))
sketch1.addConstraint(Sketcher.Constraint("DistanceX", -1, 1, 19, 1, 113.8769))
sketch1.addConstraint(Sketcher.Constraint("DistanceX", 18, 1, 18, 2, 10.343146))
sketch1.addConstraint(Sketcher.Constraint("DistanceY", 3, 1, 3, 2, 3.000757))
sketch1.addConstraint(Sketcher.Constraint("DistanceY", 67, 1, 67, 2, 14.203807))
sketch1.addConstraint(Sketcher.Constraint("DistanceY", 70, 2, 70, 1, 8.585786))
sketch1.addConstraint(Sketcher.Constraint("DistanceX", -1, 1, 63, 3, 119.49822))
sketch1.addConstraint(Sketcher.Constraint("DistanceX", -1, 1, 64, 3, 98.99822))
sketch1.addConstraint(Sketcher.Constraint("DistanceY", -1, 1, 75, 3, 117.140079))
sketch1.addConstraint(Sketcher.Constraint("DistanceX", -1, 1, 76, 3, 107.99822))
sketch1.addConstraint(Sketcher.Constraint("DistanceY", -1, 1, 79, 3, 110.069011))
sketch1.addConstraint(Sketcher.Constraint("DistanceY", -1, 1, 75, 1, 118.02964))
pad1 = body.newObject("PartDesign::Pad", "Pad")
pad1.Profile = sketch1
pad1.Length = 1000

doc.recompute()
